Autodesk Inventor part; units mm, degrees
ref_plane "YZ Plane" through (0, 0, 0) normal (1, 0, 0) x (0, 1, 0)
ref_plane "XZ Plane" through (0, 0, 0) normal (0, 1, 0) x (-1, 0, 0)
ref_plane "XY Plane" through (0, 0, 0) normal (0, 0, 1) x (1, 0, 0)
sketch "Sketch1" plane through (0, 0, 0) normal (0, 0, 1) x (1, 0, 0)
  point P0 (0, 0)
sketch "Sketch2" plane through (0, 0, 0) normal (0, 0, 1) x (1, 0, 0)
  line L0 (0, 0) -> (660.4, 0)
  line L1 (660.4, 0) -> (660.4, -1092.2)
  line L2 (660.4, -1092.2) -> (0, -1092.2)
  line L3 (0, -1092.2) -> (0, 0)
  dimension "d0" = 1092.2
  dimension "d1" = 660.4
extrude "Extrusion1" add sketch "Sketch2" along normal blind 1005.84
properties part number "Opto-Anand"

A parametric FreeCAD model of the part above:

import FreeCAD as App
import Part
import Sketcher
from FreeCAD import Vector
Q = App.Units.Quantity

doc = App.newDocument("Part")
params = doc.addObject("Spreadsheet::Sheet", "Params")
for row, (alias, value) in enumerate([
    ("sketch1_width", "26 in"),
    ("sketch1_height", "43 in"),
    ("pad1_length", "39.6 in"),
], start=1):
    params.set(f"A{row}", alias)
    params.set(f"B{row}", "=" + value)
    params.setAlias(f"B{row}", alias)

body = doc.addObject("PartDesign::Body", "Body")

# Sketch on XY plane
sketch1 = doc.addObject("Sketcher::SketchObject", "Sketch")
body.addObject(sketch1)
sketch1.AttachmentSupport = (doc.XY_Plane, [""])
sketch1.MapMode = "FlatFace"
sketch1.addGeometry([
    Part.LineSegment(Vector(660, 0, 0), Vector(0, 0, 0)),
    Part.LineSegment(Vector(0, 0, 0), Vector(0, -1092, 0)),
    Part.LineSegment(Vector(0, -1092, 0), Vector(660, -1092, 0)),
    Part.LineSegment(Vector(660, -1092, 0), Vector(660, 0, 0)),
], False)
sketch1.addConstraint([
    Sketcher.Constraint("Coincident", 0, 2, 1, 1),
    Sketcher.Constraint("Coincident", 1, 2, 2, 1),
    Sketcher.Constraint("Coincident", 2, 2, 3, 1),
    Sketcher.Constraint("Coincident", 3, 2, 0, 1),
    Sketcher.Constraint("Horizontal", 0),
    Sketcher.Constraint("Vertical", 1),
    Sketcher.Constraint("Horizontal", 2),
    Sketcher.Constraint("Vertical", 3),
    Sketcher.Constraint("Coincident", 0, 2, -1, 1),
    Sketcher.Constraint("DistanceX", 0, 2, 0, 1, Q("26 in")),
    Sketcher.Constraint("DistanceY", 1, 2, 1, 1, Q("43 in")),
])
sketch1.setExpression("Constraints[9]", "Params.sketch1_width")
sketch1.setExpression("Constraints[10]", "Params.sketch1_height")
pad1 = doc.addObject("PartDesign::Pad", "Pad")
body.addObject(pad1)
pad1.Profile = sketch1
pad1.setExpression("Length", "Params.pad1_length")

doc.recompute()
